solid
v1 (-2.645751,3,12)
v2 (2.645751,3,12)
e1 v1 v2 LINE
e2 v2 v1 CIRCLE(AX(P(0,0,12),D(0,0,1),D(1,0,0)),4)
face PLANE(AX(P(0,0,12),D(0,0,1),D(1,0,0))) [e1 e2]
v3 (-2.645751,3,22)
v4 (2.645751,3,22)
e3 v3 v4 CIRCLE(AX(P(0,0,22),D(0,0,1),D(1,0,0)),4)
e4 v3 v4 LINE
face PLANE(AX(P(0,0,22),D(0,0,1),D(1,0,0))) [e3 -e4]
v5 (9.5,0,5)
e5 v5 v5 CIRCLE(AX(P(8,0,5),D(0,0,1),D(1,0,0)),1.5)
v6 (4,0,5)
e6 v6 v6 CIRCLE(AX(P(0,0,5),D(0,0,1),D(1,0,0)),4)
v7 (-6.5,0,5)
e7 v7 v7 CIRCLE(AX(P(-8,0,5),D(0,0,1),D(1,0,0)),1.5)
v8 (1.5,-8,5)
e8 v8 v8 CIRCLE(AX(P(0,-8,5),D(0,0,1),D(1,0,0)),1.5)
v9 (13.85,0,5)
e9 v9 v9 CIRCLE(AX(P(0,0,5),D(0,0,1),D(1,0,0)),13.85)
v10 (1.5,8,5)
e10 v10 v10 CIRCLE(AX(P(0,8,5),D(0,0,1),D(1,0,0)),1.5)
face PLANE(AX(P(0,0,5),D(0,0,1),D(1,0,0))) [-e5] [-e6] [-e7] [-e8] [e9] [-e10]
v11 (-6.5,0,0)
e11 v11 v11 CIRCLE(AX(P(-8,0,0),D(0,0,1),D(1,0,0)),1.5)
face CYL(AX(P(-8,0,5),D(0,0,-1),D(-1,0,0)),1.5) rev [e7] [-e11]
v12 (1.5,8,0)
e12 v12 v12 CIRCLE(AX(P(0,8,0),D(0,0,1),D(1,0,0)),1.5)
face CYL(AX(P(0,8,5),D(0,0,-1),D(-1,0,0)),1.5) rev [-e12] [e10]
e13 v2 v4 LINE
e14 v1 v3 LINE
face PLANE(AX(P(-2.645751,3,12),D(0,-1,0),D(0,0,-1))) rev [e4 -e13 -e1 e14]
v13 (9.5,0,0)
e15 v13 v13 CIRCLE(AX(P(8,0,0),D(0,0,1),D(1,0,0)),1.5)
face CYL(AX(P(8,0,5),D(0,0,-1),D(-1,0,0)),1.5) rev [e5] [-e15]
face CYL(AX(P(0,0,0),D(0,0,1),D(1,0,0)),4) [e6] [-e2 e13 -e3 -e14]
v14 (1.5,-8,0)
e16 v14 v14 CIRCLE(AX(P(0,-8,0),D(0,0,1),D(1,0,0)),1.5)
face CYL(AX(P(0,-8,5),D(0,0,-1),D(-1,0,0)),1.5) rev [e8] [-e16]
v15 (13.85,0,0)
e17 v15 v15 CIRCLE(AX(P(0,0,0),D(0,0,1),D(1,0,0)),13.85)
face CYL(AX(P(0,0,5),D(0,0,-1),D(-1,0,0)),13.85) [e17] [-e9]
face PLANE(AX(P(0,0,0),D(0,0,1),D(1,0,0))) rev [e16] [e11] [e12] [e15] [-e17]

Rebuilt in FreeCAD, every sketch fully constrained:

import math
import FreeCAD as App
import Part
import Sketcher
from FreeCAD import Vector

doc = App.newDocument("Part")
params = doc.addObject("Spreadsheet::Sheet", "Params")
for row, (alias, value) in enumerate([
    ("sketch1_diameter", "3 mm"),
    ("sketch1_diameter2", "8 mm"),
    ("sketch1_diameter3", "27.7 mm"),
    ("pad1_length", "5 mm"),
    ("sketch2_diameter", "8 mm"),
    ("pad2_length", "17 mm"),
    ("pad2_length2", "5 mm"),
    ("sketch3_radius", "4 mm"),
    ("pocket1_length", "10 mm"),
], start=1):
    params.set(f"A{row}", alias)
    params.set(f"B{row}", "=" + value)
    params.setAlias(f"B{row}", alias)

body = doc.addObject("PartDesign::Body", "Body")

# Sketch on XY plane
sketch1 = doc.addObject("Sketcher::SketchObject", "Sketch")
body.addObject(sketch1)
sketch1.AttachmentSupport = (doc.XY_Plane, [""])
sketch1.MapMode = "FlatFace"
sketch1.addGeometry([
    Part.Circle(Vector(0, 0, 0), Vector(0, 0, 1), 13.8),  # 0
    Part.Circle(Vector(0, -8, 0), Vector(0, 0, 1), 1.5),  # 1
    Part.Circle(Vector(-8, 0, 0), Vector(0, 0, 1), 1.5),  # 2
    Part.Circle(Vector(0, 0, 0), Vector(0, 0, 1), 4),  # 3
    Part.Circle(Vector(8, 0, 0), Vector(0, 0, 1), 1.5),  # 4
    Part.Circle(Vector(0, 8, 0), Vector(0, 0, 1), 1.5),  # 5
], False)
sketch1.addConstraint([
    Sketcher.Constraint("Coincident", 0, 3, -1, 1),
    Sketcher.Constraint("Coincident", 3, 3, -1, 1),
    Sketcher.Constraint("Equal", 1, 2),
    Sketcher.Constraint("Equal", 2, 4),
    Sketcher.Constraint("Equal", 4, 5),
    Sketcher.Constraint("Symmetric", 2, 3, 4, 3, -1, 1),
    Sketcher.Constraint("Symmetric", 1, 3, 5, 3, -1, 1),
    Sketcher.Constraint("PointOnObject", 1, 3, -2),
    Sketcher.Constraint("PointOnObject", 2, 3, -1),
    Sketcher.Constraint("Diameter", 1, 3.0),
    Sketcher.Constraint("Diameter", 3, 8.0),
    Sketcher.Constraint("Diameter", 0, 27.7),
    Sketcher.Constraint("DistanceY", 1, 3, -1, 1, 8.0),
    Sketcher.Constraint("DistanceX", 2, 3, -1, 1, 8.0),
])
sketch1.setExpression("Constraints[9]", "Params.sketch1_diameter")
sketch1.setExpression("Constraints[10]", "Params.sketch1_diameter2")
sketch1.setExpression("Constraints[11]", "Params.sketch1_diameter3")
pad1 = doc.addObject("PartDesign::Pad", "Pad")
body.addObject(pad1)
pad1.Profile = sketch1
pad1.setExpression("Length", "Params.pad1_length")

# Sketch on XY plane
sketch2 = doc.addObject("Sketcher::SketchObject", "Sketch001")
body.addObject(sketch2)
sketch2.AttachmentSupport = (doc.XY_Plane, [""])
sketch2.MapMode = "FlatFace"
sketch2.AttachmentOffset = App.Placement(Vector(0, 0, 5), App.Rotation())
sketch2.addGeometry(Part.Circle(Vector(0, 0, 0), Vector(0, 0, 1), 4), False)
sketch2.addConstraint([
    Sketcher.Constraint("Coincident", 0, 3, -1, 1),
    Sketcher.Constraint("Diameter", 0, 8.0),
])
sketch2.setExpression("Constraints[1]", "Params.sketch2_diameter")
pad2 = doc.addObject("PartDesign::Pad", "Pad001")
body.addObject(pad2)
pad2.Profile = sketch2
pad2.Type = "TwoLengths"
pad2.setExpression("Length", "Params.pad2_length")
pad2.setExpression("Length2", "Params.pad2_length2")

# Sketch on XY plane
sketch3 = doc.addObject("Sketcher::SketchObject", "Sketch002")
body.addObject(sketch3)
sketch3.AttachmentSupport = (doc.XY_Plane, [""])
sketch3.MapMode = "FlatFace"
sketch3.AttachmentOffset = App.Placement(Vector(0, 0, 22), App.Rotation())
sketch3.addGeometry([
    Part.LineSegment(Vector(-2.6, 3, 0), Vector(2.6, 3, 0)),
    Part.ArcOfCircle(Part.Circle(Vector(0, 0, 0), Vector(0, 0, 1), 4), math.radians(49), math.radians(131)),
], False)
sketch3.addConstraint([
    Sketcher.Constraint("Coincident", 0, 1, 1, 2),
    Sketcher.Constraint("Coincident", 1, 1, 0, 2),
    Sketcher.Constraint("Horizontal", 0),
    Sketcher.Constraint("Coincident", 1, 3, -1, 1),
    Sketcher.Constraint("Radius", 1, 4.0),
    Sketcher.Constraint("DistanceY", -1, 1, 0, 1, 3.0),
])
sketch3.setExpression("Constraints[4]", "Params.sketch3_radius")
pocket1 = doc.addObject("PartDesign::Pocket", "Pocket")
body.addObject(pocket1)
pocket1.Profile = sketch3
pocket1.setExpression("Length", "Params.pocket1_length")

doc.recompute()
